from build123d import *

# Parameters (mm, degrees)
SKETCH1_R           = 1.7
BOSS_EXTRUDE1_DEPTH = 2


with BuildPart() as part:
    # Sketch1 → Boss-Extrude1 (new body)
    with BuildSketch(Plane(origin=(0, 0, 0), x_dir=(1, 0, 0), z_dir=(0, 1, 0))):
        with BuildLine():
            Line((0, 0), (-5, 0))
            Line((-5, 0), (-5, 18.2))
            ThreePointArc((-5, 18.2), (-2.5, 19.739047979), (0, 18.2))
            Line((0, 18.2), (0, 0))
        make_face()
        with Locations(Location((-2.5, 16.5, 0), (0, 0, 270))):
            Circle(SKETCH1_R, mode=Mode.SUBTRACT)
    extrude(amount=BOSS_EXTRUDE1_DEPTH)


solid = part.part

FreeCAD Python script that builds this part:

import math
import FreeCAD as App
import Part
import Sketcher
from FreeCAD import Vector

doc = App.newDocument("Part")
body = doc.addObject("PartDesign::Body", "Body")

# Sketch on XZ plane
sketch1 = body.newObject("Sketcher::SketchObject", "Sketch")
sketch1.AttachmentSupport = (doc.getObject("XZ_Plane"), [""])
sketch1.MapMode = "FlatFace"
sketch1.addGeometry(Part.LineSegment(Vector(-5, 0, 0), Vector(0, 0, 0)), False)
sketch1.addGeometry(Part.LineSegment(Vector(0, 0, 0), Vector(0, -18.2, 0)), False)
sketch1.addGeometry(Part.ArcOfCircle(Part.Circle(Vector(-2.5, -16.9, 0), Vector(0, 0, 1), 2.8), math.radians(-153), math.radians(-27)), False)
sketch1.addGeometry(Part.LineSegment(Vector(-5, -18.2, 0), Vector(-5, 0, 0)), False)
sketch1.addGeometry(Part.Circle(Vector(-2.5, -16.5, 0), Vector(0, 0, 1), 1.7), False)
sketch1.addConstraint(Sketcher.Constraint("Coincident", 0, 2, 1, 1))
sketch1.addConstraint(Sketcher.Constraint("Coincident", 1, 2, 2, 2))
sketch1.addConstraint(Sketcher.Constraint("Coincident", 2, 1, 3, 1))
sketch1.addConstraint(Sketcher.Constraint("Coincident", 3, 2, 0, 1))
sketch1.addConstraint(Sketcher.Constraint("Horizontal", 0))
sketch1.addConstraint(Sketcher.Constraint("Vertical", 1))
sketch1.addConstraint(Sketcher.Constraint("Vertical", 3))
sketch1.addConstraint(Sketcher.Constraint("Coincident", 0, 2, -1, 1))
sketch1.addConstraint(Sketcher.Constraint("Horizontal", 1, 2, 2, 1))
sketch1.addConstraint(Sketcher.Constraint("Vertical", 2, 3, 4, 3))
sketch1.addConstraint(Sketcher.Constraint("Diameter", 4, 3.4))
sketch1.addConstraint(Sketcher.Constraint("Radius", 2, 2.8))
sketch1.addConstraint(Sketcher.Constraint("DistanceX", 0, 1, 0, 2, 5.0))
sketch1.addConstraint(Sketcher.Constraint("DistanceY", 1, 2, 1, 1, 18.2))
sketch1.addConstraint(Sketcher.Constraint("DistanceY", 4, 3, -1, 1, 16.5))
pad1 = body.newObject("PartDesign::Pad", "Pad")
pad1.Profile = sketch1
pad1.Length = 2
pad1.Reversed = True

doc.recompute()
